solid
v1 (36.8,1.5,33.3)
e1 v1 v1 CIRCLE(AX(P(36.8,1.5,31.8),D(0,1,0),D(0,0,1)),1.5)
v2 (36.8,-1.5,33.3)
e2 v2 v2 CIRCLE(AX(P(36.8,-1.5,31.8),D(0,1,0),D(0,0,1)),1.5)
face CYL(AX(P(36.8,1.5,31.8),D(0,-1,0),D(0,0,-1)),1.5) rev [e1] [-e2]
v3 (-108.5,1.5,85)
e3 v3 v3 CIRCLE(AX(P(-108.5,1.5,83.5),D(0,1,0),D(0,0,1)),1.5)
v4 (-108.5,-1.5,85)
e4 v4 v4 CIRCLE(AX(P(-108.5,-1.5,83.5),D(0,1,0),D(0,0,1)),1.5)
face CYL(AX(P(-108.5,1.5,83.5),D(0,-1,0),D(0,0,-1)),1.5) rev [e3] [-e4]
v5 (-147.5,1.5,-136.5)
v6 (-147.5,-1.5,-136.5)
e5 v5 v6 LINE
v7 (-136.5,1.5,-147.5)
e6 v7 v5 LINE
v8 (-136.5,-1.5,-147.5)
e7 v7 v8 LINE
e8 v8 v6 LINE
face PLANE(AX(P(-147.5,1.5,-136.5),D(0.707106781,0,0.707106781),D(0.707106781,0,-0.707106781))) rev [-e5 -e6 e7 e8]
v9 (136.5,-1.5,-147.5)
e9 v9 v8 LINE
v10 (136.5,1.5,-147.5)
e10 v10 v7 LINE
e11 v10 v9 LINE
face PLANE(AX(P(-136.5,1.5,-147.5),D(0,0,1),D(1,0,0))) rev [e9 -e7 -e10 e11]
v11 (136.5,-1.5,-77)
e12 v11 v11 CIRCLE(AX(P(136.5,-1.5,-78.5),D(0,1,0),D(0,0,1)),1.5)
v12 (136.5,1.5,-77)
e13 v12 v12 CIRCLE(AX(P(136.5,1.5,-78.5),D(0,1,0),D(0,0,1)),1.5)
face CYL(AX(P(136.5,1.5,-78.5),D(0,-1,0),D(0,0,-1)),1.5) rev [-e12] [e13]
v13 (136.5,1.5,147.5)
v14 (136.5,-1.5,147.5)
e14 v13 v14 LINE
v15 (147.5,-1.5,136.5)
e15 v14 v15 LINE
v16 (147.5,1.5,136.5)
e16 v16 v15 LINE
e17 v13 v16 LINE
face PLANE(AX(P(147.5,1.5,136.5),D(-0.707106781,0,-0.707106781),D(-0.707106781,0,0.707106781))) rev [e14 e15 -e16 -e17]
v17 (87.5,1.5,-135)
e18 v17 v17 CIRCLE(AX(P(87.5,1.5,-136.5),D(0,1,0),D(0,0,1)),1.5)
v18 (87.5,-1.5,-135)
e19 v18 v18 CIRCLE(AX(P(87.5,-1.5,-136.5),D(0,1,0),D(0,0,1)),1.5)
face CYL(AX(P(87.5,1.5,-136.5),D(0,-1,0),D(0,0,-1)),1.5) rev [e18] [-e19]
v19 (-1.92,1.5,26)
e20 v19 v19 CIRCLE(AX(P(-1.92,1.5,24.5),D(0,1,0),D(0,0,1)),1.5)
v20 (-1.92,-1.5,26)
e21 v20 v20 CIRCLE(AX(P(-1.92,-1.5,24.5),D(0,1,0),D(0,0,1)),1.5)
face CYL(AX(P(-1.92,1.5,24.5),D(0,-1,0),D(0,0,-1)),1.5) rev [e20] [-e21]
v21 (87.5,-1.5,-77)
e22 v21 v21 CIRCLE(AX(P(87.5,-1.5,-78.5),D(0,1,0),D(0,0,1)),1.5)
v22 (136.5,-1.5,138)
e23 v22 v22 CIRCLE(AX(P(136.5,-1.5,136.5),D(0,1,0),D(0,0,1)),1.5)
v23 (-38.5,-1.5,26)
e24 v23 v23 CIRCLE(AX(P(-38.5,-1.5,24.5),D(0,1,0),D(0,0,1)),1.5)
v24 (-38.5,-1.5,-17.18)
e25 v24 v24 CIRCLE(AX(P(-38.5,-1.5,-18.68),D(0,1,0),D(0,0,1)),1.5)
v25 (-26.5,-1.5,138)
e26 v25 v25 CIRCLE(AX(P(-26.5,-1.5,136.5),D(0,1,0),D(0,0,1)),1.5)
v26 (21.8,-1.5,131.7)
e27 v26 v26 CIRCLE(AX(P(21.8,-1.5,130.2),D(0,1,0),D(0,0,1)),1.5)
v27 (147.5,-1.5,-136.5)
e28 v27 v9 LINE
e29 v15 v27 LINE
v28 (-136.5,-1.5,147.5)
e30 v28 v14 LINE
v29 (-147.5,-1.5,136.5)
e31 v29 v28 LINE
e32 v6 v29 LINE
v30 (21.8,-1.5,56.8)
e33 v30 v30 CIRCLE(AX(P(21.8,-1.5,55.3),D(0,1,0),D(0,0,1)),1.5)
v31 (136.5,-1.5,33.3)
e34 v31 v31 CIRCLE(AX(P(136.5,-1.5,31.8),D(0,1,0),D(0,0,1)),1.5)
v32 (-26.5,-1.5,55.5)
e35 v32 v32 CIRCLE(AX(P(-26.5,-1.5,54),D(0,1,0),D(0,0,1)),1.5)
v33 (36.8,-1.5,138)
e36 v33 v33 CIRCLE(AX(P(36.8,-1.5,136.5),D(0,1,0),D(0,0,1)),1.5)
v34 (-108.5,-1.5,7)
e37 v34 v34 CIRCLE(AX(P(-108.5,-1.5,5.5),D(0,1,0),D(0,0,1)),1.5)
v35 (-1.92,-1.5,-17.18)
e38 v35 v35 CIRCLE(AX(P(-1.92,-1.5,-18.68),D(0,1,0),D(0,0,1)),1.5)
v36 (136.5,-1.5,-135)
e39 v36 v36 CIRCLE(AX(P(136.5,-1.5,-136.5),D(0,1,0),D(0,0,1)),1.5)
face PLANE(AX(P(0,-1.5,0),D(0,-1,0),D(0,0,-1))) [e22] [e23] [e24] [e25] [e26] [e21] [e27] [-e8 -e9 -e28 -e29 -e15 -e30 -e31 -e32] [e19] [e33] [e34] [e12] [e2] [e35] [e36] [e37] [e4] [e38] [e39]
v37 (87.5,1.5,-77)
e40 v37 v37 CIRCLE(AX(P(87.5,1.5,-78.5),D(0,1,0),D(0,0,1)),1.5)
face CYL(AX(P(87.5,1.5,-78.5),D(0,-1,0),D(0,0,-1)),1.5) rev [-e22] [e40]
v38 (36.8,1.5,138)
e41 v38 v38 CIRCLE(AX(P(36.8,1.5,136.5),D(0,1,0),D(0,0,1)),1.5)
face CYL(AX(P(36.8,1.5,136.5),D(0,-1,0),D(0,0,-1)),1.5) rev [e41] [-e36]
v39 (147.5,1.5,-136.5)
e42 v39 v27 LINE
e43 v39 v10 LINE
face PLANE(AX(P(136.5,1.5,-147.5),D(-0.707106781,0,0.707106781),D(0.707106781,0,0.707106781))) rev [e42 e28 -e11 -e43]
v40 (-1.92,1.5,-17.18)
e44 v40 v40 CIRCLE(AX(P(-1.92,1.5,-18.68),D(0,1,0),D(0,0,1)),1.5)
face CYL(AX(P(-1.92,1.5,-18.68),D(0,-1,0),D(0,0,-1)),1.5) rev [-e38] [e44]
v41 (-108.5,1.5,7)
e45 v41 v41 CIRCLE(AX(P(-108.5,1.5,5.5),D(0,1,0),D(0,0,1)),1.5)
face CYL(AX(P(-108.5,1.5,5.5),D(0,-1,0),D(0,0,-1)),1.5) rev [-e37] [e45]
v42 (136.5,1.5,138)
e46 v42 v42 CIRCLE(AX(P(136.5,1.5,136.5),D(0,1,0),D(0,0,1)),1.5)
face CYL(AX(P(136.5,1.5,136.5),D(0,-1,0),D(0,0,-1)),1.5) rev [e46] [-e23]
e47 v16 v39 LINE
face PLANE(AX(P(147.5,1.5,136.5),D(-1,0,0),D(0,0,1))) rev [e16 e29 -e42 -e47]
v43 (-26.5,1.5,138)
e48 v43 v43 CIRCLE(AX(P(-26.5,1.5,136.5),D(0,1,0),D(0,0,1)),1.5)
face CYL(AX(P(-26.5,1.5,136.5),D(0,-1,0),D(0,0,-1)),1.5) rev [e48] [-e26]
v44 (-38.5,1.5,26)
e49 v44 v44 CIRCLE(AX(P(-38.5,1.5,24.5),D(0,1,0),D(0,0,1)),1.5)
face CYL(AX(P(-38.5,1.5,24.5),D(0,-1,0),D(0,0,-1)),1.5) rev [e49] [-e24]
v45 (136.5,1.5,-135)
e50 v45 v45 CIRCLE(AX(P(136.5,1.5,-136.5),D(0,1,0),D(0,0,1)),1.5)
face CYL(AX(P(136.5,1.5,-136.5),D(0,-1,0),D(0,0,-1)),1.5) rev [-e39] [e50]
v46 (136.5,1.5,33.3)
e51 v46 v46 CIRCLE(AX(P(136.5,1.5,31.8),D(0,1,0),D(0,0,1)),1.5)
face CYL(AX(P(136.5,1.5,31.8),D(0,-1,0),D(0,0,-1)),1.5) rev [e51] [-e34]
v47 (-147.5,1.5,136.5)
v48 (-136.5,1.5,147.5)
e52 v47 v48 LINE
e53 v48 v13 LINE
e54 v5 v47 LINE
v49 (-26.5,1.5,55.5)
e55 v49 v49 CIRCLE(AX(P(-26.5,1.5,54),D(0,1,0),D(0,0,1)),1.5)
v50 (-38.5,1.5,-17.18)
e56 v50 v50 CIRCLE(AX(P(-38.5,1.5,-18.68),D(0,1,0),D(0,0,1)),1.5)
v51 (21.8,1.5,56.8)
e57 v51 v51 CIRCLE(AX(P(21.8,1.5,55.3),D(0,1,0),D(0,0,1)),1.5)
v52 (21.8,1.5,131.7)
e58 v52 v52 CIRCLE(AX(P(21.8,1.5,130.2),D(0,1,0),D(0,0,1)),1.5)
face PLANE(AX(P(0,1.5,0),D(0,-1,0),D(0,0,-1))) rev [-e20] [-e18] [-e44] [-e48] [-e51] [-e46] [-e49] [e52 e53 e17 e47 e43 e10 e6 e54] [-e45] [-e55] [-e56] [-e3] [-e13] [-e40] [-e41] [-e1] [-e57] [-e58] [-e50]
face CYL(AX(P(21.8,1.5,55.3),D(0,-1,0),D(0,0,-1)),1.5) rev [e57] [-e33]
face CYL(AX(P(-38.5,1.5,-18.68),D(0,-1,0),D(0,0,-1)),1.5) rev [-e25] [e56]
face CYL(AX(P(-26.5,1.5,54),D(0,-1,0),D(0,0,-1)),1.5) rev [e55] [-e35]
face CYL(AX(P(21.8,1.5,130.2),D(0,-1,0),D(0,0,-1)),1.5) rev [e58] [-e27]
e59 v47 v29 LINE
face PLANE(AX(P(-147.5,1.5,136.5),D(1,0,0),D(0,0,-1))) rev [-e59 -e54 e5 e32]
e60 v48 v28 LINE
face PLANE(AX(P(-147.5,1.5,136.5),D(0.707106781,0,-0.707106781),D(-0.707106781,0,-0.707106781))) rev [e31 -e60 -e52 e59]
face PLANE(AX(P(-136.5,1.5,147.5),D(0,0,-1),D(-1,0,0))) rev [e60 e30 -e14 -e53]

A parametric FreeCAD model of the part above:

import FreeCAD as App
import Part
import Sketcher


def add_polygon(sketch, points):
    """Adds a closed chain of lines whose ends are joined by coincident constraints."""
    first, n = sketch.GeometryCount, len(points)
    for a, b in zip(points, points[1:] + points[:1]):
        sketch.addGeometry(Part.LineSegment(App.Vector(*a, 0), App.Vector(*b, 0)), False)
    for i in range(n):
        sketch.addConstraint(Sketcher.Constraint("Coincident", first + i, 2, first + (i + 1) % n, 1))

doc = App.newDocument("Part")
body = doc.addObject("PartDesign::Body", "Body")

sketch1 = body.newObject("Sketcher::SketchObject", "Sketch")
sketch1.AttachmentSupport = (doc.getObject("XZ_Plane"), [""])
sketch1.MapMode = "FlatFace"
add_polygon(sketch1, [(-136.5, -147.5), (-147.5, -136.5), (-147.5, 136.5), (-136.5, 147.5), (136.5, 147.5), (147.5, 136.5), (147.5, -136.5), (136.5, -147.5)])
sketch1.addGeometry(Part.Circle(App.Vector(136.5, 136.5, 0), App.Vector(0, 0, 1), 1.5), False)
sketch1.addGeometry(Part.Circle(App.Vector(36.8, 136.5, 0), App.Vector(0, 0, 1), 1.5), False)
sketch1.addGeometry(Part.Circle(App.Vector(21.8, 130.2, 0), App.Vector(0, 0, 1), 1.5), False)
sketch1.addGeometry(Part.Circle(App.Vector(136.5, 31.8, 0), App.Vector(0, 0, 1), 1.5), False)
sketch1.addGeometry(Part.Circle(App.Vector(21.8, 55.3, 0), App.Vector(0, 0, 1), 1.5), False)
sketch1.addGeometry(Part.Circle(App.Vector(36.8, 31.8, 0), App.Vector(0, 0, 1), 1.5), False)
sketch1.addGeometry(Part.Circle(App.Vector(-26.5, 136.5, 0), App.Vector(0, 0, 1), 1.5), False)
sketch1.addGeometry(Part.Circle(App.Vector(-108.5, 83.5, 0), App.Vector(0, 0, 1), 1.5), False)
sketch1.addGeometry(Part.Circle(App.Vector(-26.5, 54, 0), App.Vector(0, 0, 1), 1.5), False)
sketch1.addGeometry(Part.Circle(App.Vector(-1.9, 24.5, 0), App.Vector(0, 0, 1), 1.5), False)
sketch1.addGeometry(Part.Circle(App.Vector(-38.5, 24.5, 0), App.Vector(0, 0, 1), 1.5), False)
sketch1.addGeometry(Part.Circle(App.Vector(-108.5, 5.5, 0), App.Vector(0, 0, 1), 1.5), False)
sketch1.addGeometry(Part.Circle(App.Vector(136.5, -78.5, 0), App.Vector(0, 0, 1), 1.5), False)
sketch1.addGeometry(Part.Circle(App.Vector(87.5, -78.5, 0), App.Vector(0, 0, 1), 1.5), False)
sketch1.addGeometry(Part.Circle(App.Vector(136.5, -136.5, 0), App.Vector(0, 0, 1), 1.5), False)
sketch1.addGeometry(Part.Circle(App.Vector(87.5, -136.5, 0), App.Vector(0, 0, 1), 1.5), False)
sketch1.addGeometry(Part.Circle(App.Vector(-1.9, -18.7, 0), App.Vector(0, 0, 1), 1.5), False)
sketch1.addGeometry(Part.Circle(App.Vector(-38.5, -18.7, 0), App.Vector(0, 0, 1), 1.5), False)
sketch1.addConstraint([
    Sketcher.Constraint("Vertical", 1),
    Sketcher.Constraint("Horizontal", 3),
    Sketcher.Constraint("Vertical", 5),
    Sketcher.Constraint("Horizontal", 7),
    Sketcher.Constraint("Equal", 8, 9),
    Sketcher.Constraint("Equal", 9, 10),
    Sketcher.Constraint("Equal", 10, 11),
    Sketcher.Constraint("Equal", 11, 12),
    Sketcher.Constraint("Equal", 12, 13),
    Sketcher.Constraint("Equal", 13, 14),
    Sketcher.Constraint("Equal", 14, 15),
    Sketcher.Constraint("Equal", 15, 16),
    Sketcher.Constraint("Equal", 16, 17),
    Sketcher.Constraint("Equal", 17, 18),
    Sketcher.Constraint("Equal", 18, 19),
    Sketcher.Constraint("Equal", 19, 20),
    Sketcher.Constraint("Equal", 20, 21),
    Sketcher.Constraint("Equal", 21, 22),
    Sketcher.Constraint("Equal", 22, 23),
    Sketcher.Constraint("Equal", 23, 24),
    Sketcher.Constraint("Equal", 24, 25),
    Sketcher.Constraint("Symmetric", 0, 2, 4, 2, -1, 1),
    Sketcher.Constraint("Symmetric", 2, 2, 6, 2, -1, 1),
    Sketcher.Constraint("Symmetric", 8, 3, 22, 3, -1),
    Sketcher.Constraint("Perpendicular", 0, 2),
    Sketcher.Constraint("Perpendicular", 2, 4),
    Sketcher.Constraint("Perpendicular", 4, 6),
    Sketcher.Constraint("Horizontal", 8, 3, 9, 3),
    Sketcher.Constraint("Horizontal", 11, 3, 13, 3),
    Sketcher.Constraint("Horizontal", 9, 3, 14, 3),
    Sketcher.Constraint("Horizontal", 17, 3, 18, 3),
    Sketcher.Constraint("Horizontal", 20, 3, 21, 3),
    Sketcher.Constraint("Horizontal", 22, 3, 23, 3),
    Sketcher.Constraint("Horizontal", 24, 3, 25, 3),
    Sketcher.Constraint("Horizontal", 23, 3, 0, 2),
    Sketcher.Constraint("Horizontal", 14, 3, 1, 2),
    Sketcher.Constraint("Vertical", 8, 3, 11, 3),
    Sketcher.Constraint("Vertical", 10, 3, 12, 3),
    Sketcher.Constraint("Vertical", 9, 3, 13, 3),
    Sketcher.Constraint("Vertical", 14, 3, 16, 3),
    Sketcher.Constraint("Vertical", 15, 3, 19, 3),
    Sketcher.Constraint("Vertical", 11, 3, 20, 3),
    Sketcher.Constraint("Vertical", 21, 3, 23, 3),
    Sketcher.Constraint("Vertical", 17, 3, 24, 3),
    Sketcher.Constraint("Vertical", 18, 3, 25, 3),
    Sketcher.Constraint("Vertical", 22, 3, 3, 2),
    Sketcher.Constraint("Vertical", 3, 2, 6, 2),
    Sketcher.Constraint("Equal", 7, 1),
    Sketcher.Constraint("Diameter", 8, 3.0),
    Sketcher.Constraint("DistanceX", 3, 1, 3, 2, 273.0),
    Sketcher.Constraint("DistanceY", -1, 1, 16, 3, 54.0),
    Sketcher.Constraint("DistanceX", 10, 3, 9, 3, 15.0),
    Sketcher.Constraint("DistanceX", 14, 3, 8, 3, 163.0),
    Sketcher.Constraint("DistanceX", 15, 3, 14, 3, 82.0),
    Sketcher.Constraint("DistanceY", 15, 3, 14, 3, 53.0),
    Sketcher.Constraint("DistanceY", 17, 3, 14, 3, 112.0),
    Sketcher.Constraint("DistanceX", 18, 3, 16, 3, 12.0),
    Sketcher.Constraint("DistanceY", 19, 3, 18, 3, 19.0),
    Sketcher.Constraint("DistanceY", 20, 3, 17, 3, 103.0),
    Sketcher.Constraint("DistanceX", 21, 3, 20, 3, 49.0),
    Sketcher.Constraint("DistanceX", 0, 2, 19, 3, 39.0),
    Sketcher.Constraint("DistanceX", -1, 1, 9, 3, 36.8),
    Sketcher.Constraint("DistanceY", -1, 1, 10, 3, 130.2),
    Sketcher.Constraint("DistanceY", -1, 1, 11, 3, 31.8),
    Sketcher.Constraint("DistanceY", -1, 1, 12, 3, 55.3),
    Sketcher.Constraint("DistanceX", 17, 3, -1, 1, 1.92),
    Sketcher.Constraint("DistanceY", 24, 3, -1, 1, 18.68),
])
pad1 = body.newObject("PartDesign::Pad", "Pad")
pad1.Profile = sketch1
pad1.Length = 3
pad1.Midplane = True

doc.recompute()
